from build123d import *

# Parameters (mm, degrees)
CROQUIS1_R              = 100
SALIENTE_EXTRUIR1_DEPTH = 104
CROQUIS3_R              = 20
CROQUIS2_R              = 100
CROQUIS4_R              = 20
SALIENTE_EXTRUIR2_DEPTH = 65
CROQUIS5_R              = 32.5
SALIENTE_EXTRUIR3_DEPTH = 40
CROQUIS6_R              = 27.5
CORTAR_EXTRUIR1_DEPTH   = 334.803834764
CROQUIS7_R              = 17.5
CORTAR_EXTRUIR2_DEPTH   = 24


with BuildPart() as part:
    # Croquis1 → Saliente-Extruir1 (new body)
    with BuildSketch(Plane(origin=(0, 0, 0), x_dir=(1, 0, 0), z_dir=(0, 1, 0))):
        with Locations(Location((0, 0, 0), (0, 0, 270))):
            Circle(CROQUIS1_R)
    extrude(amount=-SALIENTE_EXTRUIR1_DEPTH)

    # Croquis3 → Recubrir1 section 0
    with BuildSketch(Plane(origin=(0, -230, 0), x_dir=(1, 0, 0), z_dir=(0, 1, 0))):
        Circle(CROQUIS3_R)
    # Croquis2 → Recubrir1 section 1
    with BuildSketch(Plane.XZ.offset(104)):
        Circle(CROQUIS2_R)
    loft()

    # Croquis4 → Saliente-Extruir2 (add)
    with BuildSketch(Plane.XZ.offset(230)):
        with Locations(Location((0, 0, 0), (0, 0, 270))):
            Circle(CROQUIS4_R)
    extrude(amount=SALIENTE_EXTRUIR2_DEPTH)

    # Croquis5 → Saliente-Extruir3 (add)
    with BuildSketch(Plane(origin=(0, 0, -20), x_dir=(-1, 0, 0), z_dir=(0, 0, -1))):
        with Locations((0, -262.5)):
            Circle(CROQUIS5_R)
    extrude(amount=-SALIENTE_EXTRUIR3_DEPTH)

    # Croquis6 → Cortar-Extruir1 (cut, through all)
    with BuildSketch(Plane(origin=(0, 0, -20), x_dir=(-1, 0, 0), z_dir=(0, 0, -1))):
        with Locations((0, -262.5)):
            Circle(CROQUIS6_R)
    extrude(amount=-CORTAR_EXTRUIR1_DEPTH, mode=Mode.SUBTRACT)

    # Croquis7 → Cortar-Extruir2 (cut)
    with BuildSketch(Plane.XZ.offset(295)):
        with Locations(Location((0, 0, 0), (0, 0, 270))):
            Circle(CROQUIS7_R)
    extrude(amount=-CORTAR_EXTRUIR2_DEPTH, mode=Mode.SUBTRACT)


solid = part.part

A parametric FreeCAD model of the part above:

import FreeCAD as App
import Part
import Sketcher
from FreeCAD import Vector

doc = App.newDocument("Part")
params = doc.addObject("Spreadsheet::Sheet", "Params")
for row, (alias, value) in enumerate([
    ("sketch1_diameter", "200 mm"),
    ("pad1_length", "104 mm"),
    ("sketch2_diameter", "40 mm"),
    ("sketch3_diameter", "200 mm"),
    ("sketch4_diameter", "40 mm"),
    ("pad2_length", "65 mm"),
    ("sketch5_diameter", "65 mm"),
    ("pad3_length", "40 mm"),
    ("sketch6_diameter", "55 mm"),
    ("sketch7_diameter", "35 mm"),
    ("pocket2_length", "24 mm"),
], start=1):
    params.set(f"A{row}", alias)
    params.set(f"B{row}", "=" + value)
    params.setAlias(f"B{row}", alias)

body = doc.addObject("PartDesign::Body", "Body")

sketch1 = doc.addObject("Sketcher::SketchObject", "Sketch")
body.addObject(sketch1)
sketch1.AttachmentSupport = (doc.XZ_Plane, [""])
sketch1.MapMode = "FlatFace"
sketch1.addGeometry(Part.Circle(Vector(0, 0, 0), Vector(0, 0, 1), 100), False)
sketch1.addConstraint([
    Sketcher.Constraint("Coincident", 0, 3, -1, 1),
    Sketcher.Constraint("Diameter", 0, 200.0),
])
sketch1.setExpression("Constraints[1]", "Params.sketch1_diameter")
pad1 = doc.addObject("PartDesign::Pad", "Pad")
body.addObject(pad1)
pad1.Profile = sketch1
pad1.setExpression("Length", "Params.pad1_length")

sketch2 = doc.addObject("Sketcher::SketchObject", "Sketch001")
body.addObject(sketch2)
sketch2.AttachmentSupport = (doc.XZ_Plane, [""])
sketch2.MapMode = "FlatFace"
sketch2.AttachmentOffset = App.Placement(Vector(0, 0, 230), App.Rotation())
sketch2.addGeometry(Part.Circle(Vector(0, 0, 0), Vector(0, 0, 1), 20), False)
sketch2.addConstraint([
    Sketcher.Constraint("Coincident", 0, 3, -1, 1),
    Sketcher.Constraint("Diameter", 0, 40.0),
])
sketch2.setExpression("Constraints[1]", "Params.sketch2_diameter")

sketch3 = doc.addObject("Sketcher::SketchObject", "Sketch002")
body.addObject(sketch3)
sketch3.AttachmentSupport = (doc.XZ_Plane, [""])
sketch3.MapMode = "FlatFace"
sketch3.AttachmentOffset = App.Placement(Vector(0, 0, 104), App.Rotation())
sketch3.addGeometry(Part.Circle(Vector(0, 0, 0), Vector(0, 0, 1), 100), False)
sketch3.addConstraint([
    Sketcher.Constraint("Coincident", 0, 3, -1, 1),
    Sketcher.Constraint("Diameter", 0, 200.0),
])
sketch3.setExpression("Constraints[1]", "Params.sketch3_diameter")

additiveloft = doc.addObject("PartDesign::AdditiveLoft", "AdditiveLoft")
body.addObject(additiveloft)
additiveloft.Profile = sketch2
additiveloft.Sections = [sketch3]

sketch4 = doc.addObject("Sketcher::SketchObject", "Sketch003")
body.addObject(sketch4)
sketch4.AttachmentSupport = (doc.XZ_Plane, [""])
sketch4.MapMode = "FlatFace"
sketch4.AttachmentOffset = App.Placement(Vector(0, 0, 230), App.Rotation())
sketch4.addGeometry(Part.Circle(Vector(0, 0, 0), Vector(0, 0, 1), 20), False)
sketch4.addConstraint([
    Sketcher.Constraint("Coincident", 0, 3, -1, 1),
    Sketcher.Constraint("Diameter", 0, 40.0),
])
sketch4.setExpression("Constraints[1]", "Params.sketch4_diameter")
pad2 = doc.addObject("PartDesign::Pad", "Pad001")
body.addObject(pad2)
pad2.Profile = sketch4
pad2.setExpression("Length", "Params.pad2_length")

sketch5 = doc.addObject("Sketcher::SketchObject", "Sketch004")
body.addObject(sketch5)
sketch5.AttachmentSupport = (doc.XY_Plane, [""])
sketch5.MapMode = "FlatFace"
sketch5.AttachmentOffset = App.Placement(Vector(0, 0, -20), App.Rotation())
sketch5.addGeometry(Part.Circle(Vector(0, -262.5, 0), Vector(0, 0, 1), 32.5), False)
sketch5.addConstraint([
    Sketcher.Constraint("PointOnObject", 0, 3, -2),
    Sketcher.Constraint("Diameter", 0, 65.0),
    Sketcher.Constraint("DistanceY", 0, 3, -1, 1, 262.5),
])
sketch5.setExpression("Constraints[1]", "Params.sketch5_diameter")
pad3 = doc.addObject("PartDesign::Pad", "Pad002")
body.addObject(pad3)
pad3.Profile = sketch5
pad3.setExpression("Length", "Params.pad3_length")

sketch6 = doc.addObject("Sketcher::SketchObject", "Sketch005")
body.addObject(sketch6)
sketch6.AttachmentSupport = (doc.XY_Plane, [""])
sketch6.MapMode = "FlatFace"
sketch6.AttachmentOffset = App.Placement(Vector(0, 0, -20), App.Rotation())
sketch6.addGeometry(Part.Circle(Vector(0, -262.5, 0), Vector(0, 0, 1), 27.5), False)
sketch6.addConstraint([
    Sketcher.Constraint("PointOnObject", 0, 3, -2),
    Sketcher.Constraint("Diameter", 0, 55.0),
    Sketcher.Constraint("DistanceY", 0, 3, -1, 1, 262.5),
])
sketch6.setExpression("Constraints[1]", "Params.sketch6_diameter")
pocket1 = doc.addObject("PartDesign::Pocket", "Pocket")
body.addObject(pocket1)
pocket1.Profile = sketch6
pocket1.Type = "ThroughAll"
pocket1.Reversed = True

sketch7 = doc.addObject("Sketcher::SketchObject", "Sketch006")
body.addObject(sketch7)
sketch7.AttachmentSupport = (doc.XZ_Plane, [""])
sketch7.MapMode = "FlatFace"
sketch7.AttachmentOffset = App.Placement(Vector(0, 0, 295), App.Rotation())
sketch7.addGeometry(Part.Circle(Vector(0, 0, 0), Vector(0, 0, 1), 17.5), False)
sketch7.addConstraint([
    Sketcher.Constraint("Coincident", 0, 3, -1, 1),
    Sketcher.Constraint("Diameter", 0, 35.0),
])
sketch7.setExpression("Constraints[1]", "Params.sketch7_diameter")
pocket2 = doc.addObject("PartDesign::Pocket", "Pocket001")
body.addObject(pocket2)
pocket2.Profile = sketch7
pocket2.setExpression("Length", "Params.pocket2_length")

doc.recompute()
